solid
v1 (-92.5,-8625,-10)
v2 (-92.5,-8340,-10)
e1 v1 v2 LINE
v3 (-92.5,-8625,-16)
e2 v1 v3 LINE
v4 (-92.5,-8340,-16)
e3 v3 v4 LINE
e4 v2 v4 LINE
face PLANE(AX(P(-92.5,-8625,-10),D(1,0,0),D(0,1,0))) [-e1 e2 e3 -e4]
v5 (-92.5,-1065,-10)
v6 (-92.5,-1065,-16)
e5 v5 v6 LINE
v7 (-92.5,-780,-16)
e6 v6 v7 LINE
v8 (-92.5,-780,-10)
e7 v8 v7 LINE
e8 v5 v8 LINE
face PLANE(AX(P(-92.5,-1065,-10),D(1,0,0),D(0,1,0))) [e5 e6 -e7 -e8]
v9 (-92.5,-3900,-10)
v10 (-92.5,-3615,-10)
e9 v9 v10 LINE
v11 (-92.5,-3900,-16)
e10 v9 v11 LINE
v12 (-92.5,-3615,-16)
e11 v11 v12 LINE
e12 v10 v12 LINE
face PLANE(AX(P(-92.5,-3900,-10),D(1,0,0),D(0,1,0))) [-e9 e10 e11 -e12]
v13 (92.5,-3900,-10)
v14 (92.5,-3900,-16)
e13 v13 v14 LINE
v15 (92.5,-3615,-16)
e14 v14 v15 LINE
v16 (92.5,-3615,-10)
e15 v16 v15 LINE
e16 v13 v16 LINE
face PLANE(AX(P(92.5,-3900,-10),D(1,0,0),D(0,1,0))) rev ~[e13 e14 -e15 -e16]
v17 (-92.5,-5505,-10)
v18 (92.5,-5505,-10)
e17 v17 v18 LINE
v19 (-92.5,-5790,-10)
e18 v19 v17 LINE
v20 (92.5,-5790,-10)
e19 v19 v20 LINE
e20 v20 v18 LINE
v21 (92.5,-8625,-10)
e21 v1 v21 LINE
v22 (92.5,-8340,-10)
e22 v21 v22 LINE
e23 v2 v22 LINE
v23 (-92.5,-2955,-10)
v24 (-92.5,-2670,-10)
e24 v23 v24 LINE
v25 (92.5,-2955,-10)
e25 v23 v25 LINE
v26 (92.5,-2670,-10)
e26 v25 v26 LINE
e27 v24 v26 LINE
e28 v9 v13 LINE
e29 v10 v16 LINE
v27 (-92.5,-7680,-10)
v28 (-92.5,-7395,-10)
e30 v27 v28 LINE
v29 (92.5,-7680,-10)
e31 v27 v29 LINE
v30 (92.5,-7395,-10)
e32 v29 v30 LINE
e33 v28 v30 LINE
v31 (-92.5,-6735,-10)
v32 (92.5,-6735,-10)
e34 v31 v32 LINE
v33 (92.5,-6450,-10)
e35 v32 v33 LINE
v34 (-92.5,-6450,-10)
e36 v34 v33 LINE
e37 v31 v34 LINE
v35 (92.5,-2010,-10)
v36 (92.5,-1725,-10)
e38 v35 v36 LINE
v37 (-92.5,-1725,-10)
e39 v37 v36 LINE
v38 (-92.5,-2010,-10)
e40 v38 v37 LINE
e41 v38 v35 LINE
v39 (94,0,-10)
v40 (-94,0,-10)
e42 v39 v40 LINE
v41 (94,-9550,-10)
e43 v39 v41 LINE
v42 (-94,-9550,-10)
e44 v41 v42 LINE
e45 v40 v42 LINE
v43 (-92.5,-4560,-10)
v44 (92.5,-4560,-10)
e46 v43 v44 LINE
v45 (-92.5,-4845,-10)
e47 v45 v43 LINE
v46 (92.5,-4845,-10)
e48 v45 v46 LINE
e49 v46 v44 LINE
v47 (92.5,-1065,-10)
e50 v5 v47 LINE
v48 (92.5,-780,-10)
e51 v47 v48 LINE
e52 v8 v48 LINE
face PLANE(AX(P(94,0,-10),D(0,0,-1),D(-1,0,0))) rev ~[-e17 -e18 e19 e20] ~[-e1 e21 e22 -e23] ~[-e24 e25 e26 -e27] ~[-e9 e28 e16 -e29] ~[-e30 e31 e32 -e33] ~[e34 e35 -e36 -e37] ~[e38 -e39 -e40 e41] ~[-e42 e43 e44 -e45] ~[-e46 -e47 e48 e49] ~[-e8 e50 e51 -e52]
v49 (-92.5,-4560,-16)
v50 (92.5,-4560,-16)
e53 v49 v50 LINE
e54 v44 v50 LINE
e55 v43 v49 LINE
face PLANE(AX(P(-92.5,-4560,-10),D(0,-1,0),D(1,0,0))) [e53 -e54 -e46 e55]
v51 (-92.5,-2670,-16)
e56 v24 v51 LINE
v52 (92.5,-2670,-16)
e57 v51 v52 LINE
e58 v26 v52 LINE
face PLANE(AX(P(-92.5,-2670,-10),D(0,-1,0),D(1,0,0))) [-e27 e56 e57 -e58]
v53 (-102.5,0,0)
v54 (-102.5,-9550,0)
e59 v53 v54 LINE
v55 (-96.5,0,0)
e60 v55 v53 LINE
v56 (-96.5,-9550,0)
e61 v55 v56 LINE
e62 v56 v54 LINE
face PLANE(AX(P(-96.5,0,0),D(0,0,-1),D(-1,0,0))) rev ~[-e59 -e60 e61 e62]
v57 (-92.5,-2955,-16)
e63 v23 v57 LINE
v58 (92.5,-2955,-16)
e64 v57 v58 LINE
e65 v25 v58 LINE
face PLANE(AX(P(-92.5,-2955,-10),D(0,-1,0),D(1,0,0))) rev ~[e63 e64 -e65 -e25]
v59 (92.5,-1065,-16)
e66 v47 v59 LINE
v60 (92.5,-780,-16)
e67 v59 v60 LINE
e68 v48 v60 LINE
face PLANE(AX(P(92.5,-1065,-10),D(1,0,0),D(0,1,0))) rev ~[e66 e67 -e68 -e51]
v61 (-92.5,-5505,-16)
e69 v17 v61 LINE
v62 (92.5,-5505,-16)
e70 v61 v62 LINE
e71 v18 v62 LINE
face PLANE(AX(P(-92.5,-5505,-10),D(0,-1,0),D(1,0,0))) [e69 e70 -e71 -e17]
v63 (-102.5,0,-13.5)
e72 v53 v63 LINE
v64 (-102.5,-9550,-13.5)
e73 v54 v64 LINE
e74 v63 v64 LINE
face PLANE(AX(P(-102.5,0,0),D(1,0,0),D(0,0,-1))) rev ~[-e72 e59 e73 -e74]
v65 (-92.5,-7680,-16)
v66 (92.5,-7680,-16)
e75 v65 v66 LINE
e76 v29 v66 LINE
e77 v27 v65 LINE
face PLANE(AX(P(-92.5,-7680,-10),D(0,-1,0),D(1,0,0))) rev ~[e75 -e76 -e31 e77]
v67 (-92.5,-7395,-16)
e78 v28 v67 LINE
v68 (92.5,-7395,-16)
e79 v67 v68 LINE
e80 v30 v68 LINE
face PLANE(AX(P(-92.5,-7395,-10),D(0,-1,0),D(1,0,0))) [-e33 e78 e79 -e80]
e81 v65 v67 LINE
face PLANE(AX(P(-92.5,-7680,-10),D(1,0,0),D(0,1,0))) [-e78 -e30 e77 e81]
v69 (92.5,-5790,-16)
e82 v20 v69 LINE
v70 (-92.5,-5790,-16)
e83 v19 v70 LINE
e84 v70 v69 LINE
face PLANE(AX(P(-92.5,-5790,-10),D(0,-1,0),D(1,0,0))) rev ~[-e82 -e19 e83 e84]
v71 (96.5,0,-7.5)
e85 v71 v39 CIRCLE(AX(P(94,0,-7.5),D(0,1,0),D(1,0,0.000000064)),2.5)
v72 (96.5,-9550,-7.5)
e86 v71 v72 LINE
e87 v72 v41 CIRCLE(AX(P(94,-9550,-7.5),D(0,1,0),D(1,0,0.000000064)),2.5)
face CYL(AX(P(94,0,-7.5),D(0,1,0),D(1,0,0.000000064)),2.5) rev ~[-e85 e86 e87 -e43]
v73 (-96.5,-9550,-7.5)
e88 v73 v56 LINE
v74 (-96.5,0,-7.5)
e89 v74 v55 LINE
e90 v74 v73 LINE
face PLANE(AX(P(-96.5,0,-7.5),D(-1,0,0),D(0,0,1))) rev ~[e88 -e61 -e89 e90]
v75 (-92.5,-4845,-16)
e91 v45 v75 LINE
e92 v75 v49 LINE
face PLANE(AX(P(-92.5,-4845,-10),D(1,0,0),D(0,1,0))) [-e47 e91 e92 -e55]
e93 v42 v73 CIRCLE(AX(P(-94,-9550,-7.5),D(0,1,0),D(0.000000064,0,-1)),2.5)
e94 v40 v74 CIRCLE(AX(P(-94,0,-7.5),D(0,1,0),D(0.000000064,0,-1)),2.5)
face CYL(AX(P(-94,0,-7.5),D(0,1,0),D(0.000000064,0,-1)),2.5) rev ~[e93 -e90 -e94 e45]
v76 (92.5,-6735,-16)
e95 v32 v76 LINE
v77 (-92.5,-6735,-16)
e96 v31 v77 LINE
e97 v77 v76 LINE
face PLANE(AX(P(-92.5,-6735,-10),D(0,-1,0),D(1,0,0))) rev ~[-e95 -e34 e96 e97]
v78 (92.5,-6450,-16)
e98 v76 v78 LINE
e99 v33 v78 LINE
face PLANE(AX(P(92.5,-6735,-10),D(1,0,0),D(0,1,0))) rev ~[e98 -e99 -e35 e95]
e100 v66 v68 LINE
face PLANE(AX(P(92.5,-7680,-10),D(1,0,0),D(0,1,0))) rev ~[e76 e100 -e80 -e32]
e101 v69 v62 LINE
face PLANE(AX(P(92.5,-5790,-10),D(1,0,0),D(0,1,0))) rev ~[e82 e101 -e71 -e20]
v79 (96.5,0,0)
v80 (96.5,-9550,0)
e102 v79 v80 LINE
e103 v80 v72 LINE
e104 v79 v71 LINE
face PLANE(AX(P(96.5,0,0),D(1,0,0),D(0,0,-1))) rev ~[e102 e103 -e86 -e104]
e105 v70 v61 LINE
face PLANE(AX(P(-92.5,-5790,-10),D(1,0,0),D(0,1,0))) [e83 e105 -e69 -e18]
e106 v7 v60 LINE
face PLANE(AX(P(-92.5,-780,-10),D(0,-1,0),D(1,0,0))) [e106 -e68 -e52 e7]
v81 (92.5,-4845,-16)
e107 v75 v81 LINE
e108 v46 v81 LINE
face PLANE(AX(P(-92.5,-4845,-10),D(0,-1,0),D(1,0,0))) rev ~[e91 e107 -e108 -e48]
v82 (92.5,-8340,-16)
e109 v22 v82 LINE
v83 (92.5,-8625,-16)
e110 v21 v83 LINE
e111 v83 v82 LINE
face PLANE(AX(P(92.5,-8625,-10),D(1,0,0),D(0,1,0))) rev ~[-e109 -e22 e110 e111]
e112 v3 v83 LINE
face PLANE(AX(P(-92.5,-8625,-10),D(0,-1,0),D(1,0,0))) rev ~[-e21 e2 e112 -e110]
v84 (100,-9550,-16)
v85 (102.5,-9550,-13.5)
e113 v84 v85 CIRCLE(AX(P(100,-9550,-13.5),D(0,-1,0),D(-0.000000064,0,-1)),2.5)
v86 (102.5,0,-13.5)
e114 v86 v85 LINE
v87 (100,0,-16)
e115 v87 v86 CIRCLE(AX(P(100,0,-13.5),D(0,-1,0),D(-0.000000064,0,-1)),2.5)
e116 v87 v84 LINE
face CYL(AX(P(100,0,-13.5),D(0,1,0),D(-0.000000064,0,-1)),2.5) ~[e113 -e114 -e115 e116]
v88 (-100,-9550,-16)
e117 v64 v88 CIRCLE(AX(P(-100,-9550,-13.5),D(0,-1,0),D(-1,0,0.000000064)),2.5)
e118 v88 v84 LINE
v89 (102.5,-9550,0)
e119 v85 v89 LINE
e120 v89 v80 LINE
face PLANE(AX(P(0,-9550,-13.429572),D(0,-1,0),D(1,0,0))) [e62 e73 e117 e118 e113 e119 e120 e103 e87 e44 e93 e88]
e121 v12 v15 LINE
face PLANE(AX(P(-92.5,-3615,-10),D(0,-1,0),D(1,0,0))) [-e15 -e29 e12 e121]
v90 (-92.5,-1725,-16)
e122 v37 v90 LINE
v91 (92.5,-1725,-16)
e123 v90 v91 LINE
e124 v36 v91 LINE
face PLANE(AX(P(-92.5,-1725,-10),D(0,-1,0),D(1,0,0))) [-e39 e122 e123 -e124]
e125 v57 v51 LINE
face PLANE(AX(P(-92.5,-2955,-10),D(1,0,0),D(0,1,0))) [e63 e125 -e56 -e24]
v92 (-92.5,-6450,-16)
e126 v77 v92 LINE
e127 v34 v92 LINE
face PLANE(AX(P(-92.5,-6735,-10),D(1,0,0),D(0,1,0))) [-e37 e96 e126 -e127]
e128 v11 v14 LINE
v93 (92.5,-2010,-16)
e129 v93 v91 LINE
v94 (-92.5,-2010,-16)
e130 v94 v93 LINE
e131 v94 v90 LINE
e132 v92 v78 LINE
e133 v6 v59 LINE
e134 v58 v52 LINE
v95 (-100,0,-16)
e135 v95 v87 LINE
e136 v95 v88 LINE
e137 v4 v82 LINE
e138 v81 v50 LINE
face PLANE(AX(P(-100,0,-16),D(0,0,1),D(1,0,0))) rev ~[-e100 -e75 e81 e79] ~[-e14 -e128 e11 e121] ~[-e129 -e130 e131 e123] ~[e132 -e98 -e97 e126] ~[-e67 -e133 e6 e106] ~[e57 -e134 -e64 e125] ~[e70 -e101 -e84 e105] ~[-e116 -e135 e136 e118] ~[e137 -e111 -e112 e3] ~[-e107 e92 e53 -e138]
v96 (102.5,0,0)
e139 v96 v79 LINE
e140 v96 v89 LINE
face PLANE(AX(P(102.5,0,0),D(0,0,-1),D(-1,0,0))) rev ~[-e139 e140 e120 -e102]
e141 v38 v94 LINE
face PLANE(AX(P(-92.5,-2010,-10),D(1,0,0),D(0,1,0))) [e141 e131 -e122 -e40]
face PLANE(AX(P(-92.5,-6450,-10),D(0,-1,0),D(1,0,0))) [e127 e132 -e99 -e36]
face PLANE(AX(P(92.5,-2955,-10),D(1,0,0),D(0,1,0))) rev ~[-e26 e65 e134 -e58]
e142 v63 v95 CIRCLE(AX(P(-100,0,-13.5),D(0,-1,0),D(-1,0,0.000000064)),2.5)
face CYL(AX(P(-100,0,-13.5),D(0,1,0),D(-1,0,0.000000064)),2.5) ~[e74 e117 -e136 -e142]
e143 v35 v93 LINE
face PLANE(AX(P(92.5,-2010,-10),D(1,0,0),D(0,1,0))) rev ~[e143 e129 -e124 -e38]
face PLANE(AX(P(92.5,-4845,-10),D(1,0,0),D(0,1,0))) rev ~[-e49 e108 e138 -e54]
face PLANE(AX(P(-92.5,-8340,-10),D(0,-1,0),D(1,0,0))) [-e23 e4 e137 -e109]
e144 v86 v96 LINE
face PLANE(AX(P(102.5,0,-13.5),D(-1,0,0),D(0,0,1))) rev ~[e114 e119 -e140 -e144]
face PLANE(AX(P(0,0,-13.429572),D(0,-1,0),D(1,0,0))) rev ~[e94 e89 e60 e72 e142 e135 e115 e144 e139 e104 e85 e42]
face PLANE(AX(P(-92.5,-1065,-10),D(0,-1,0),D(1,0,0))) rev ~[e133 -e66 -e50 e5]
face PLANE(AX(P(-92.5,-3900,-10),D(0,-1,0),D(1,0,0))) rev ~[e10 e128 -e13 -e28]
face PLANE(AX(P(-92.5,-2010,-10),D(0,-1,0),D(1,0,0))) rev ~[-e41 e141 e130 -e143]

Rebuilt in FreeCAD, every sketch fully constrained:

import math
import FreeCAD as App
import Part
import Sketcher

V = App.Vector
Q = App.Units.Quantity


def add_polygon(sketch, points):
    """Adds a closed chain of lines whose ends are joined by coincident constraints."""
    first, n = sketch.GeometryCount, len(points)
    for a, b in zip(points, points[1:] + points[:1]):
        sketch.addGeometry(Part.LineSegment(App.Vector(*a, 0), App.Vector(*b, 0)), False)
    for i in range(n):
        sketch.addConstraint(Sketcher.Constraint("Coincident", first + i, 2, first + (i + 1) % n, 1))

doc = App.newDocument("Part")
body = doc.addObject("PartDesign::Body", "Body")

sketch1 = body.newObject("Sketcher::SketchObject", "Sketch")
sketch1.AttachmentSupport = (doc.getObject("XZ_Plane"), [""])
sketch1.MapMode = "FlatFace"
sketch1.addGeometry(Part.LineSegment(V(-100, -16, 0), V(100, -16, 0)), False)
sketch1.addGeometry(Part.ArcOfCircle(Part.Circle(V(100, -13.5, 0), V(0, 0, 1), 2.5), math.radians(-90), math.radians(0)), False)
sketch1.addGeometry(Part.LineSegment(V(102.5, -13.5, 0), V(102.5, 0, 0)), False)
sketch1.addGeometry(Part.LineSegment(V(102.5, 0, 0), V(96.5, 0, 0)), False)
sketch1.addGeometry(Part.LineSegment(V(96.5, 0, 0), V(96.5, -7.5, 0)), False)
sketch1.addGeometry(Part.ArcOfCircle(Part.Circle(V(94, -7.5, 0), V(0, 0, 1), 2.5), math.radians(-90), math.radians(0)), False)
sketch1.addGeometry(Part.LineSegment(V(94, -10, 0), V(-94, -10, 0)), False)
sketch1.addGeometry(Part.ArcOfCircle(Part.Circle(V(-94, -7.5, 0), V(0, 0, 1), 2.5), math.radians(180), math.radians(270)), False)
sketch1.addGeometry(Part.LineSegment(V(-96.5, -7.5, 0), V(-96.5, 0, 0)), False)
sketch1.addGeometry(Part.LineSegment(V(-96.5, 0, 0), V(-102.5, 0, 0)), False)
sketch1.addGeometry(Part.LineSegment(V(-102.5, 0, 0), V(-102.5, -13.5, 0)), False)
sketch1.addGeometry(Part.ArcOfCircle(Part.Circle(V(-100, -13.5, 0), V(0, 0, 1), 2.5), math.radians(180), math.radians(270)), False)
sketch1.addConstraint(Sketcher.Constraint("Tangent", 0, 2, 1, 1))
sketch1.addConstraint(Sketcher.Constraint("Tangent", 1, 2, 2, 1))
sketch1.addConstraint(Sketcher.Constraint("Coincident", 2, 2, 3, 1))
sketch1.addConstraint(Sketcher.Constraint("Coincident", 3, 2, 4, 1))
sketch1.addConstraint(Sketcher.Constraint("Tangent", 4, 2, 5, 2))
sketch1.addConstraint(Sketcher.Constraint("Tangent", 5, 1, 6, 1))
sketch1.addConstraint(Sketcher.Constraint("Tangent", 6, 2, 7, 2))
sketch1.addConstraint(Sketcher.Constraint("Tangent", 7, 1, 8, 1))
sketch1.addConstraint(Sketcher.Constraint("Coincident", 8, 2, 9, 1))
sketch1.addConstraint(Sketcher.Constraint("Coincident", 9, 2, 10, 1))
sketch1.addConstraint(Sketcher.Constraint("Tangent", 10, 2, 11, 1))
sketch1.addConstraint(Sketcher.Constraint("Tangent", 11, 2, 0, 1))
sketch1.addConstraint(Sketcher.Constraint("Horizontal", 0))
sketch1.addConstraint(Sketcher.Constraint("Vertical", 2))
sketch1.addConstraint(Sketcher.Constraint("Horizontal", 3))
sketch1.addConstraint(Sketcher.Constraint("Vertical", 4))
sketch1.addConstraint(Sketcher.Constraint("Horizontal", 6))
sketch1.addConstraint(Sketcher.Constraint("Vertical", 8))
sketch1.addConstraint(Sketcher.Constraint("Horizontal", 9))
sketch1.addConstraint(Sketcher.Constraint("Vertical", 10))
sketch1.addConstraint(Sketcher.Constraint("Equal", 1, 5))
sketch1.addConstraint(Sketcher.Constraint("Equal", 5, 7))
sketch1.addConstraint(Sketcher.Constraint("Equal", 7, 11))
sketch1.addConstraint(Sketcher.Constraint("Symmetric", 3, 2, 8, 2, -1, 1))
sketch1.addConstraint(Sketcher.Constraint("Symmetric", 2, 2, 9, 2, -2))
sketch1.addConstraint(Sketcher.Constraint("Radius", 1, Q("2.5 mm")))
sketch1.addConstraint(Sketcher.Constraint("DistanceX", 0, 1, 0, 2, Q("200 mm")))
sketch1.addConstraint(Sketcher.Constraint("DistanceX", 3, 2, 3, 1, Q("6 mm")))
sketch1.addConstraint(Sketcher.Constraint("DistanceY", 2, 1, 2, 2, Q("13.5 mm")))
sketch1.addConstraint(Sketcher.Constraint("DistanceY", 4, 2, 4, 1, Q("7.5 mm")))
pad1 = body.newObject("PartDesign::Pad", "Pad")
pad1.Profile = sketch1
pad1.Length = 9550

sketch2 = body.newObject("Sketcher::SketchObject", "Sketch001")
sketch2.AttachmentSupport = (doc.getObject("XY_Plane"), [""])
sketch2.MapMode = "FlatFace"
sketch2.AttachmentOffset = App.Placement(V(0, 0, -10), App.Rotation())
add_polygon(sketch2, [(-92, -8340), (-92, -8625), (92, -8625), (92, -8340)])
add_polygon(sketch2, [(-92, -7395), (-92, -7680), (92, -7680), (92, -7395)])
add_polygon(sketch2, [(-92, -6450), (-92, -6735), (92, -6735), (92, -6450)])
add_polygon(sketch2, [(-92, -5505), (-92, -5790), (92, -5790), (92, -5505)])
add_polygon(sketch2, [(-92, -4560), (-92, -4845), (92, -4845), (92, -4560)])
add_polygon(sketch2, [(-92, -3615), (-92, -3900), (92, -3900), (92, -3615)])
add_polygon(sketch2, [(-92, -2670), (-92, -2955), (92, -2955), (92, -2670)])
add_polygon(sketch2, [(-92, -1725), (-92, -2010), (92, -2010), (92, -1725)])
add_polygon(sketch2, [(-92, -780), (-92, -1065), (92, -1065), (92, -780)])
sketch2.addConstraint(Sketcher.Constraint("Vertical", 0))
sketch2.addConstraint(Sketcher.Constraint("Horizontal", 1))
sketch2.addConstraint(Sketcher.Constraint("Vertical", 2))
sketch2.addConstraint(Sketcher.Constraint("Horizontal", 3))
sketch2.addConstraint(Sketcher.Constraint("Vertical", 4))
sketch2.addConstraint(Sketcher.Constraint("Horizontal", 5))
sketch2.addConstraint(Sketcher.Constraint("Vertical", 6))
sketch2.addConstraint(Sketcher.Constraint("Horizontal", 7))
sketch2.addConstraint(Sketcher.Constraint("Vertical", 8))
sketch2.addConstraint(Sketcher.Constraint("Horizontal", 9))
sketch2.addConstraint(Sketcher.Constraint("Vertical", 10))
sketch2.addConstraint(Sketcher.Constraint("Horizontal", 11))
sketch2.addConstraint(Sketcher.Constraint("Vertical", 12))
sketch2.addConstraint(Sketcher.Constraint("Horizontal", 13))
sketch2.addConstraint(Sketcher.Constraint("Vertical", 14))
sketch2.addConstraint(Sketcher.Constraint("Horizontal", 15))
sketch2.addConstraint(Sketcher.Constraint("Vertical", 16))
sketch2.addConstraint(Sketcher.Constraint("Horizontal", 17))
sketch2.addConstraint(Sketcher.Constraint("Vertical", 18))
sketch2.addConstraint(Sketcher.Constraint("Horizontal", 19))
sketch2.addConstraint(Sketcher.Constraint("Vertical", 20))
sketch2.addConstraint(Sketcher.Constraint("Horizontal", 21))
sketch2.addConstraint(Sketcher.Constraint("Vertical", 22))
sketch2.addConstraint(Sketcher.Constraint("Horizontal", 23))
sketch2.addConstraint(Sketcher.Constraint("Vertical", 24))
sketch2.addConstraint(Sketcher.Constraint("Horizontal", 25))
sketch2.addConstraint(Sketcher.Constraint("Vertical", 26))
sketch2.addConstraint(Sketcher.Constraint("Horizontal", 27))
sketch2.addConstraint(Sketcher.Constraint("Vertical", 28))
sketch2.addConstraint(Sketcher.Constraint("Horizontal", 29))
sketch2.addConstraint(Sketcher.Constraint("Vertical", 30))
sketch2.addConstraint(Sketcher.Constraint("Horizontal", 31))
sketch2.addConstraint(Sketcher.Constraint("Vertical", 32))
sketch2.addConstraint(Sketcher.Constraint("Horizontal", 33))
sketch2.addConstraint(Sketcher.Constraint("Vertical", 34))
sketch2.addConstraint(Sketcher.Constraint("Horizontal", 35))
sketch2.addConstraint(Sketcher.Constraint("Vertical", 3, 2, 4, 2))
sketch2.addConstraint(Sketcher.Constraint("Vertical", 2, 2, 5, 2))
sketch2.addConstraint(Sketcher.Constraint("Vertical", 7, 2, 8, 2))
sketch2.addConstraint(Sketcher.Constraint("Vertical", 6, 2, 9, 2))
sketch2.addConstraint(Sketcher.Constraint("Vertical", 11, 2, 12, 2))
sketch2.addConstraint(Sketcher.Constraint("Vertical", 10, 2, 13, 2))
sketch2.addConstraint(Sketcher.Constraint("Vertical", 15, 2, 16, 2))
sketch2.addConstraint(Sketcher.Constraint("Vertical", 14, 2, 17, 2))
sketch2.addConstraint(Sketcher.Constraint("Vertical", 19, 2, 20, 2))
sketch2.addConstraint(Sketcher.Constraint("Vertical", 18, 2, 21, 2))
sketch2.addConstraint(Sketcher.Constraint("Vertical", 23, 2, 24, 2))
sketch2.addConstraint(Sketcher.Constraint("Vertical", 22, 2, 25, 2))
sketch2.addConstraint(Sketcher.Constraint("Vertical", 27, 2, 28, 2))
sketch2.addConstraint(Sketcher.Constraint("Vertical", 26, 2, 29, 2))
sketch2.addConstraint(Sketcher.Constraint("Vertical", 31, 2, 32, 2))
sketch2.addConstraint(Sketcher.Constraint("Vertical", 30, 2, 33, 2))
sketch2.addConstraint(Sketcher.Constraint("Equal", 2, 4))
sketch2.addConstraint(Sketcher.Constraint("Equal", 6, 8))
sketch2.addConstraint(Sketcher.Constraint("Equal", 10, 12))
sketch2.addConstraint(Sketcher.Constraint("Equal", 14, 16))
sketch2.addConstraint(Sketcher.Constraint("Equal", 18, 20))
sketch2.addConstraint(Sketcher.Constraint("Equal", 22, 24))
sketch2.addConstraint(Sketcher.Constraint("Equal", 26, 28))
sketch2.addConstraint(Sketcher.Constraint("Equal", 30, 32))
sketch2.addConstraint(Sketcher.Constraint("DistanceX", 1, 1, 1, 2, Q("185 mm")))
sketch2.addConstraint(Sketcher.Constraint("DistanceY", 0, 2, 0, 1, Q("285 mm")))
sketch2.addConstraint(Sketcher.Constraint("DistanceY", 0, 2, -1, 1, Q("8625 mm")))
sketch2.addConstraint(Sketcher.Constraint("DistanceY", 4, 2, -1, 1, Q("7680 mm")))
sketch2.addConstraint(Sketcher.Constraint("DistanceY", 8, 2, -1, 1, Q("6735 mm")))
sketch2.addConstraint(Sketcher.Constraint("DistanceY", 12, 2, -1, 1, Q("5790 mm")))
sketch2.addConstraint(Sketcher.Constraint("DistanceY", 16, 2, -1, 1, Q("4845 mm")))
sketch2.addConstraint(Sketcher.Constraint("DistanceY", 20, 2, -1, 1, Q("3900 mm")))
sketch2.addConstraint(Sketcher.Constraint("DistanceY", 24, 2, -1, 1, Q("2955 mm")))
sketch2.addConstraint(Sketcher.Constraint("DistanceY", 28, 2, -1, 1, Q("2010 mm")))
sketch2.addConstraint(Sketcher.Constraint("DistanceY", 32, 2, -1, 1, Q("1065 mm")))
sketch2.addConstraint(Sketcher.Constraint("DistanceX", 0, 2, -1, 1, Q("92.5 mm")))
pocket1 = body.newObject("PartDesign::Pocket", "Pocket")
pocket1.Profile = sketch2
pocket1.Length = 25

doc.recompute()
